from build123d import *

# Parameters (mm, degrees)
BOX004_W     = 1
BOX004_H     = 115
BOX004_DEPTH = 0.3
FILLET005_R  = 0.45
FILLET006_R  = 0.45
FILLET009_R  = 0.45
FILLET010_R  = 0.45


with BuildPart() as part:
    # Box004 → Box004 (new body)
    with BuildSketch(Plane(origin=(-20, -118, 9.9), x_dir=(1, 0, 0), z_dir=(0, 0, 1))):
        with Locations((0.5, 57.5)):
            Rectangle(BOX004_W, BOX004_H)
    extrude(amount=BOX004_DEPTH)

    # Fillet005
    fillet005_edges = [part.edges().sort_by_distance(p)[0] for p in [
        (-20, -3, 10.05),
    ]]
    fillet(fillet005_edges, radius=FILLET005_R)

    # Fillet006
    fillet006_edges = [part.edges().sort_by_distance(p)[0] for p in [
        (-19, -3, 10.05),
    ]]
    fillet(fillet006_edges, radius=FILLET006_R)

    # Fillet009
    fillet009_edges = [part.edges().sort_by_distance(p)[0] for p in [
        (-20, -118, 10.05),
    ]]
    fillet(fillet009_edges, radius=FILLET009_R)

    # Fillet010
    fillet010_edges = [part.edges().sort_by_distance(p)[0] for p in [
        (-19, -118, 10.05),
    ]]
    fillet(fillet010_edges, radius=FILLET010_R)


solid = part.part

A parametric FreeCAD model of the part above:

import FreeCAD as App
import Part
import Sketcher

V = App.Vector
Q = App.Units.Quantity


def edges_at(feature, points):
    """Names of the edges that pass closest to the given points."""
    edges = feature.Shape.Edges
    near = lambda p: min(range(len(edges)), key=lambda i: edges[i].distToShape(Part.Vertex(*p))[0])
    return sorted({f"Edge{near(p) + 1}" for p in points})

doc = App.newDocument("Part")
params = doc.addObject("Spreadsheet::Sheet", "Params")
for row, (alias, value) in enumerate([
    ("sketch1_width", "1 mm"),
    ("sketch1_height", "115 mm"),
    ("pad1_length", "0.3 mm"),
    ("fillet_radius", "0.45 mm"),
    ("fillet2_radius", "0.45 mm"),
    ("fillet3_radius", "0.45 mm"),
    ("fillet4_radius", "0.45 mm"),
], start=1):
    params.set(f"A{row}", alias)
    params.set(f"B{row}", "=" + value)
    params.setAlias(f"B{row}", alias)

body = doc.addObject("PartDesign::Body", "Body")

# Sketch on XY plane
sketch1 = body.newObject("Sketcher::SketchObject", "Sketch")
sketch1.AttachmentSupport = (doc.getObject("XY_Plane"), [""])
sketch1.MapMode = "FlatFace"
sketch1.AttachmentOffset = App.Placement(V(0, 0, 9.9), App.Rotation())
sketch1.addGeometry(Part.LineSegment(V(-20, -3, 0), V(-20, -118, 0)), False)
sketch1.addGeometry(Part.LineSegment(V(-20, -118, 0), V(-19, -118, 0)), False)
sketch1.addGeometry(Part.LineSegment(V(-19, -118, 0), V(-19, -3, 0)), False)
sketch1.addGeometry(Part.LineSegment(V(-19, -3, 0), V(-20, -3, 0)), False)
sketch1.addConstraint(Sketcher.Constraint("Coincident", 0, 2, 1, 1))
sketch1.addConstraint(Sketcher.Constraint("Coincident", 1, 2, 2, 1))
sketch1.addConstraint(Sketcher.Constraint("Coincident", 2, 2, 3, 1))
sketch1.addConstraint(Sketcher.Constraint("Coincident", 3, 2, 0, 1))
sketch1.addConstraint(Sketcher.Constraint("Vertical", 0))
sketch1.addConstraint(Sketcher.Constraint("Horizontal", 1))
sketch1.addConstraint(Sketcher.Constraint("Vertical", 2))
sketch1.addConstraint(Sketcher.Constraint("Horizontal", 3))
sketch1.addConstraint(Sketcher.Constraint("DistanceX", 1, 1, 1, 2, Q("1 mm")))
sketch1.addConstraint(Sketcher.Constraint("DistanceY", 0, 2, 0, 1, Q("115 mm")))
sketch1.addConstraint(Sketcher.Constraint("DistanceX", 0, 2, -1, 1, Q("20 mm")))
sketch1.addConstraint(Sketcher.Constraint("DistanceY", 0, 2, -1, 1, Q("118 mm")))
sketch1.setExpression("Constraints[8]", "Params.sketch1_width")
sketch1.setExpression("Constraints[9]", "Params.sketch1_height")
pad1 = body.newObject("PartDesign::Pad", "Pad")
pad1.Profile = sketch1
pad1.setExpression("Length", "Params.pad1_length")
doc.recompute()

fillet = body.newObject("PartDesign::Fillet", "Fillet")
fillet.Base = (pad1, edges_at(pad1, [(-20, -3, 10.05)]))
fillet.setExpression("Radius", "Params.fillet_radius")
doc.recompute()

fillet2 = body.newObject("PartDesign::Fillet", "Fillet001")
fillet2.Base = (fillet, edges_at(fillet, [(-19, -3, 10.05)]))
fillet2.setExpression("Radius", "Params.fillet2_radius")
doc.recompute()

fillet3 = body.newObject("PartDesign::Fillet", "Fillet002")
fillet3.Base = (fillet2, edges_at(fillet2, [(-20, -118, 10.05)]))
fillet3.setExpression("Radius", "Params.fillet3_radius")
doc.recompute()

fillet4 = body.newObject("PartDesign::Fillet", "Fillet003")
fillet4.Base = (fillet3, edges_at(fillet3, [(-19, -118, 10.05)]))
fillet4.setExpression("Radius", "Params.fillet4_radius")

doc.recompute()
